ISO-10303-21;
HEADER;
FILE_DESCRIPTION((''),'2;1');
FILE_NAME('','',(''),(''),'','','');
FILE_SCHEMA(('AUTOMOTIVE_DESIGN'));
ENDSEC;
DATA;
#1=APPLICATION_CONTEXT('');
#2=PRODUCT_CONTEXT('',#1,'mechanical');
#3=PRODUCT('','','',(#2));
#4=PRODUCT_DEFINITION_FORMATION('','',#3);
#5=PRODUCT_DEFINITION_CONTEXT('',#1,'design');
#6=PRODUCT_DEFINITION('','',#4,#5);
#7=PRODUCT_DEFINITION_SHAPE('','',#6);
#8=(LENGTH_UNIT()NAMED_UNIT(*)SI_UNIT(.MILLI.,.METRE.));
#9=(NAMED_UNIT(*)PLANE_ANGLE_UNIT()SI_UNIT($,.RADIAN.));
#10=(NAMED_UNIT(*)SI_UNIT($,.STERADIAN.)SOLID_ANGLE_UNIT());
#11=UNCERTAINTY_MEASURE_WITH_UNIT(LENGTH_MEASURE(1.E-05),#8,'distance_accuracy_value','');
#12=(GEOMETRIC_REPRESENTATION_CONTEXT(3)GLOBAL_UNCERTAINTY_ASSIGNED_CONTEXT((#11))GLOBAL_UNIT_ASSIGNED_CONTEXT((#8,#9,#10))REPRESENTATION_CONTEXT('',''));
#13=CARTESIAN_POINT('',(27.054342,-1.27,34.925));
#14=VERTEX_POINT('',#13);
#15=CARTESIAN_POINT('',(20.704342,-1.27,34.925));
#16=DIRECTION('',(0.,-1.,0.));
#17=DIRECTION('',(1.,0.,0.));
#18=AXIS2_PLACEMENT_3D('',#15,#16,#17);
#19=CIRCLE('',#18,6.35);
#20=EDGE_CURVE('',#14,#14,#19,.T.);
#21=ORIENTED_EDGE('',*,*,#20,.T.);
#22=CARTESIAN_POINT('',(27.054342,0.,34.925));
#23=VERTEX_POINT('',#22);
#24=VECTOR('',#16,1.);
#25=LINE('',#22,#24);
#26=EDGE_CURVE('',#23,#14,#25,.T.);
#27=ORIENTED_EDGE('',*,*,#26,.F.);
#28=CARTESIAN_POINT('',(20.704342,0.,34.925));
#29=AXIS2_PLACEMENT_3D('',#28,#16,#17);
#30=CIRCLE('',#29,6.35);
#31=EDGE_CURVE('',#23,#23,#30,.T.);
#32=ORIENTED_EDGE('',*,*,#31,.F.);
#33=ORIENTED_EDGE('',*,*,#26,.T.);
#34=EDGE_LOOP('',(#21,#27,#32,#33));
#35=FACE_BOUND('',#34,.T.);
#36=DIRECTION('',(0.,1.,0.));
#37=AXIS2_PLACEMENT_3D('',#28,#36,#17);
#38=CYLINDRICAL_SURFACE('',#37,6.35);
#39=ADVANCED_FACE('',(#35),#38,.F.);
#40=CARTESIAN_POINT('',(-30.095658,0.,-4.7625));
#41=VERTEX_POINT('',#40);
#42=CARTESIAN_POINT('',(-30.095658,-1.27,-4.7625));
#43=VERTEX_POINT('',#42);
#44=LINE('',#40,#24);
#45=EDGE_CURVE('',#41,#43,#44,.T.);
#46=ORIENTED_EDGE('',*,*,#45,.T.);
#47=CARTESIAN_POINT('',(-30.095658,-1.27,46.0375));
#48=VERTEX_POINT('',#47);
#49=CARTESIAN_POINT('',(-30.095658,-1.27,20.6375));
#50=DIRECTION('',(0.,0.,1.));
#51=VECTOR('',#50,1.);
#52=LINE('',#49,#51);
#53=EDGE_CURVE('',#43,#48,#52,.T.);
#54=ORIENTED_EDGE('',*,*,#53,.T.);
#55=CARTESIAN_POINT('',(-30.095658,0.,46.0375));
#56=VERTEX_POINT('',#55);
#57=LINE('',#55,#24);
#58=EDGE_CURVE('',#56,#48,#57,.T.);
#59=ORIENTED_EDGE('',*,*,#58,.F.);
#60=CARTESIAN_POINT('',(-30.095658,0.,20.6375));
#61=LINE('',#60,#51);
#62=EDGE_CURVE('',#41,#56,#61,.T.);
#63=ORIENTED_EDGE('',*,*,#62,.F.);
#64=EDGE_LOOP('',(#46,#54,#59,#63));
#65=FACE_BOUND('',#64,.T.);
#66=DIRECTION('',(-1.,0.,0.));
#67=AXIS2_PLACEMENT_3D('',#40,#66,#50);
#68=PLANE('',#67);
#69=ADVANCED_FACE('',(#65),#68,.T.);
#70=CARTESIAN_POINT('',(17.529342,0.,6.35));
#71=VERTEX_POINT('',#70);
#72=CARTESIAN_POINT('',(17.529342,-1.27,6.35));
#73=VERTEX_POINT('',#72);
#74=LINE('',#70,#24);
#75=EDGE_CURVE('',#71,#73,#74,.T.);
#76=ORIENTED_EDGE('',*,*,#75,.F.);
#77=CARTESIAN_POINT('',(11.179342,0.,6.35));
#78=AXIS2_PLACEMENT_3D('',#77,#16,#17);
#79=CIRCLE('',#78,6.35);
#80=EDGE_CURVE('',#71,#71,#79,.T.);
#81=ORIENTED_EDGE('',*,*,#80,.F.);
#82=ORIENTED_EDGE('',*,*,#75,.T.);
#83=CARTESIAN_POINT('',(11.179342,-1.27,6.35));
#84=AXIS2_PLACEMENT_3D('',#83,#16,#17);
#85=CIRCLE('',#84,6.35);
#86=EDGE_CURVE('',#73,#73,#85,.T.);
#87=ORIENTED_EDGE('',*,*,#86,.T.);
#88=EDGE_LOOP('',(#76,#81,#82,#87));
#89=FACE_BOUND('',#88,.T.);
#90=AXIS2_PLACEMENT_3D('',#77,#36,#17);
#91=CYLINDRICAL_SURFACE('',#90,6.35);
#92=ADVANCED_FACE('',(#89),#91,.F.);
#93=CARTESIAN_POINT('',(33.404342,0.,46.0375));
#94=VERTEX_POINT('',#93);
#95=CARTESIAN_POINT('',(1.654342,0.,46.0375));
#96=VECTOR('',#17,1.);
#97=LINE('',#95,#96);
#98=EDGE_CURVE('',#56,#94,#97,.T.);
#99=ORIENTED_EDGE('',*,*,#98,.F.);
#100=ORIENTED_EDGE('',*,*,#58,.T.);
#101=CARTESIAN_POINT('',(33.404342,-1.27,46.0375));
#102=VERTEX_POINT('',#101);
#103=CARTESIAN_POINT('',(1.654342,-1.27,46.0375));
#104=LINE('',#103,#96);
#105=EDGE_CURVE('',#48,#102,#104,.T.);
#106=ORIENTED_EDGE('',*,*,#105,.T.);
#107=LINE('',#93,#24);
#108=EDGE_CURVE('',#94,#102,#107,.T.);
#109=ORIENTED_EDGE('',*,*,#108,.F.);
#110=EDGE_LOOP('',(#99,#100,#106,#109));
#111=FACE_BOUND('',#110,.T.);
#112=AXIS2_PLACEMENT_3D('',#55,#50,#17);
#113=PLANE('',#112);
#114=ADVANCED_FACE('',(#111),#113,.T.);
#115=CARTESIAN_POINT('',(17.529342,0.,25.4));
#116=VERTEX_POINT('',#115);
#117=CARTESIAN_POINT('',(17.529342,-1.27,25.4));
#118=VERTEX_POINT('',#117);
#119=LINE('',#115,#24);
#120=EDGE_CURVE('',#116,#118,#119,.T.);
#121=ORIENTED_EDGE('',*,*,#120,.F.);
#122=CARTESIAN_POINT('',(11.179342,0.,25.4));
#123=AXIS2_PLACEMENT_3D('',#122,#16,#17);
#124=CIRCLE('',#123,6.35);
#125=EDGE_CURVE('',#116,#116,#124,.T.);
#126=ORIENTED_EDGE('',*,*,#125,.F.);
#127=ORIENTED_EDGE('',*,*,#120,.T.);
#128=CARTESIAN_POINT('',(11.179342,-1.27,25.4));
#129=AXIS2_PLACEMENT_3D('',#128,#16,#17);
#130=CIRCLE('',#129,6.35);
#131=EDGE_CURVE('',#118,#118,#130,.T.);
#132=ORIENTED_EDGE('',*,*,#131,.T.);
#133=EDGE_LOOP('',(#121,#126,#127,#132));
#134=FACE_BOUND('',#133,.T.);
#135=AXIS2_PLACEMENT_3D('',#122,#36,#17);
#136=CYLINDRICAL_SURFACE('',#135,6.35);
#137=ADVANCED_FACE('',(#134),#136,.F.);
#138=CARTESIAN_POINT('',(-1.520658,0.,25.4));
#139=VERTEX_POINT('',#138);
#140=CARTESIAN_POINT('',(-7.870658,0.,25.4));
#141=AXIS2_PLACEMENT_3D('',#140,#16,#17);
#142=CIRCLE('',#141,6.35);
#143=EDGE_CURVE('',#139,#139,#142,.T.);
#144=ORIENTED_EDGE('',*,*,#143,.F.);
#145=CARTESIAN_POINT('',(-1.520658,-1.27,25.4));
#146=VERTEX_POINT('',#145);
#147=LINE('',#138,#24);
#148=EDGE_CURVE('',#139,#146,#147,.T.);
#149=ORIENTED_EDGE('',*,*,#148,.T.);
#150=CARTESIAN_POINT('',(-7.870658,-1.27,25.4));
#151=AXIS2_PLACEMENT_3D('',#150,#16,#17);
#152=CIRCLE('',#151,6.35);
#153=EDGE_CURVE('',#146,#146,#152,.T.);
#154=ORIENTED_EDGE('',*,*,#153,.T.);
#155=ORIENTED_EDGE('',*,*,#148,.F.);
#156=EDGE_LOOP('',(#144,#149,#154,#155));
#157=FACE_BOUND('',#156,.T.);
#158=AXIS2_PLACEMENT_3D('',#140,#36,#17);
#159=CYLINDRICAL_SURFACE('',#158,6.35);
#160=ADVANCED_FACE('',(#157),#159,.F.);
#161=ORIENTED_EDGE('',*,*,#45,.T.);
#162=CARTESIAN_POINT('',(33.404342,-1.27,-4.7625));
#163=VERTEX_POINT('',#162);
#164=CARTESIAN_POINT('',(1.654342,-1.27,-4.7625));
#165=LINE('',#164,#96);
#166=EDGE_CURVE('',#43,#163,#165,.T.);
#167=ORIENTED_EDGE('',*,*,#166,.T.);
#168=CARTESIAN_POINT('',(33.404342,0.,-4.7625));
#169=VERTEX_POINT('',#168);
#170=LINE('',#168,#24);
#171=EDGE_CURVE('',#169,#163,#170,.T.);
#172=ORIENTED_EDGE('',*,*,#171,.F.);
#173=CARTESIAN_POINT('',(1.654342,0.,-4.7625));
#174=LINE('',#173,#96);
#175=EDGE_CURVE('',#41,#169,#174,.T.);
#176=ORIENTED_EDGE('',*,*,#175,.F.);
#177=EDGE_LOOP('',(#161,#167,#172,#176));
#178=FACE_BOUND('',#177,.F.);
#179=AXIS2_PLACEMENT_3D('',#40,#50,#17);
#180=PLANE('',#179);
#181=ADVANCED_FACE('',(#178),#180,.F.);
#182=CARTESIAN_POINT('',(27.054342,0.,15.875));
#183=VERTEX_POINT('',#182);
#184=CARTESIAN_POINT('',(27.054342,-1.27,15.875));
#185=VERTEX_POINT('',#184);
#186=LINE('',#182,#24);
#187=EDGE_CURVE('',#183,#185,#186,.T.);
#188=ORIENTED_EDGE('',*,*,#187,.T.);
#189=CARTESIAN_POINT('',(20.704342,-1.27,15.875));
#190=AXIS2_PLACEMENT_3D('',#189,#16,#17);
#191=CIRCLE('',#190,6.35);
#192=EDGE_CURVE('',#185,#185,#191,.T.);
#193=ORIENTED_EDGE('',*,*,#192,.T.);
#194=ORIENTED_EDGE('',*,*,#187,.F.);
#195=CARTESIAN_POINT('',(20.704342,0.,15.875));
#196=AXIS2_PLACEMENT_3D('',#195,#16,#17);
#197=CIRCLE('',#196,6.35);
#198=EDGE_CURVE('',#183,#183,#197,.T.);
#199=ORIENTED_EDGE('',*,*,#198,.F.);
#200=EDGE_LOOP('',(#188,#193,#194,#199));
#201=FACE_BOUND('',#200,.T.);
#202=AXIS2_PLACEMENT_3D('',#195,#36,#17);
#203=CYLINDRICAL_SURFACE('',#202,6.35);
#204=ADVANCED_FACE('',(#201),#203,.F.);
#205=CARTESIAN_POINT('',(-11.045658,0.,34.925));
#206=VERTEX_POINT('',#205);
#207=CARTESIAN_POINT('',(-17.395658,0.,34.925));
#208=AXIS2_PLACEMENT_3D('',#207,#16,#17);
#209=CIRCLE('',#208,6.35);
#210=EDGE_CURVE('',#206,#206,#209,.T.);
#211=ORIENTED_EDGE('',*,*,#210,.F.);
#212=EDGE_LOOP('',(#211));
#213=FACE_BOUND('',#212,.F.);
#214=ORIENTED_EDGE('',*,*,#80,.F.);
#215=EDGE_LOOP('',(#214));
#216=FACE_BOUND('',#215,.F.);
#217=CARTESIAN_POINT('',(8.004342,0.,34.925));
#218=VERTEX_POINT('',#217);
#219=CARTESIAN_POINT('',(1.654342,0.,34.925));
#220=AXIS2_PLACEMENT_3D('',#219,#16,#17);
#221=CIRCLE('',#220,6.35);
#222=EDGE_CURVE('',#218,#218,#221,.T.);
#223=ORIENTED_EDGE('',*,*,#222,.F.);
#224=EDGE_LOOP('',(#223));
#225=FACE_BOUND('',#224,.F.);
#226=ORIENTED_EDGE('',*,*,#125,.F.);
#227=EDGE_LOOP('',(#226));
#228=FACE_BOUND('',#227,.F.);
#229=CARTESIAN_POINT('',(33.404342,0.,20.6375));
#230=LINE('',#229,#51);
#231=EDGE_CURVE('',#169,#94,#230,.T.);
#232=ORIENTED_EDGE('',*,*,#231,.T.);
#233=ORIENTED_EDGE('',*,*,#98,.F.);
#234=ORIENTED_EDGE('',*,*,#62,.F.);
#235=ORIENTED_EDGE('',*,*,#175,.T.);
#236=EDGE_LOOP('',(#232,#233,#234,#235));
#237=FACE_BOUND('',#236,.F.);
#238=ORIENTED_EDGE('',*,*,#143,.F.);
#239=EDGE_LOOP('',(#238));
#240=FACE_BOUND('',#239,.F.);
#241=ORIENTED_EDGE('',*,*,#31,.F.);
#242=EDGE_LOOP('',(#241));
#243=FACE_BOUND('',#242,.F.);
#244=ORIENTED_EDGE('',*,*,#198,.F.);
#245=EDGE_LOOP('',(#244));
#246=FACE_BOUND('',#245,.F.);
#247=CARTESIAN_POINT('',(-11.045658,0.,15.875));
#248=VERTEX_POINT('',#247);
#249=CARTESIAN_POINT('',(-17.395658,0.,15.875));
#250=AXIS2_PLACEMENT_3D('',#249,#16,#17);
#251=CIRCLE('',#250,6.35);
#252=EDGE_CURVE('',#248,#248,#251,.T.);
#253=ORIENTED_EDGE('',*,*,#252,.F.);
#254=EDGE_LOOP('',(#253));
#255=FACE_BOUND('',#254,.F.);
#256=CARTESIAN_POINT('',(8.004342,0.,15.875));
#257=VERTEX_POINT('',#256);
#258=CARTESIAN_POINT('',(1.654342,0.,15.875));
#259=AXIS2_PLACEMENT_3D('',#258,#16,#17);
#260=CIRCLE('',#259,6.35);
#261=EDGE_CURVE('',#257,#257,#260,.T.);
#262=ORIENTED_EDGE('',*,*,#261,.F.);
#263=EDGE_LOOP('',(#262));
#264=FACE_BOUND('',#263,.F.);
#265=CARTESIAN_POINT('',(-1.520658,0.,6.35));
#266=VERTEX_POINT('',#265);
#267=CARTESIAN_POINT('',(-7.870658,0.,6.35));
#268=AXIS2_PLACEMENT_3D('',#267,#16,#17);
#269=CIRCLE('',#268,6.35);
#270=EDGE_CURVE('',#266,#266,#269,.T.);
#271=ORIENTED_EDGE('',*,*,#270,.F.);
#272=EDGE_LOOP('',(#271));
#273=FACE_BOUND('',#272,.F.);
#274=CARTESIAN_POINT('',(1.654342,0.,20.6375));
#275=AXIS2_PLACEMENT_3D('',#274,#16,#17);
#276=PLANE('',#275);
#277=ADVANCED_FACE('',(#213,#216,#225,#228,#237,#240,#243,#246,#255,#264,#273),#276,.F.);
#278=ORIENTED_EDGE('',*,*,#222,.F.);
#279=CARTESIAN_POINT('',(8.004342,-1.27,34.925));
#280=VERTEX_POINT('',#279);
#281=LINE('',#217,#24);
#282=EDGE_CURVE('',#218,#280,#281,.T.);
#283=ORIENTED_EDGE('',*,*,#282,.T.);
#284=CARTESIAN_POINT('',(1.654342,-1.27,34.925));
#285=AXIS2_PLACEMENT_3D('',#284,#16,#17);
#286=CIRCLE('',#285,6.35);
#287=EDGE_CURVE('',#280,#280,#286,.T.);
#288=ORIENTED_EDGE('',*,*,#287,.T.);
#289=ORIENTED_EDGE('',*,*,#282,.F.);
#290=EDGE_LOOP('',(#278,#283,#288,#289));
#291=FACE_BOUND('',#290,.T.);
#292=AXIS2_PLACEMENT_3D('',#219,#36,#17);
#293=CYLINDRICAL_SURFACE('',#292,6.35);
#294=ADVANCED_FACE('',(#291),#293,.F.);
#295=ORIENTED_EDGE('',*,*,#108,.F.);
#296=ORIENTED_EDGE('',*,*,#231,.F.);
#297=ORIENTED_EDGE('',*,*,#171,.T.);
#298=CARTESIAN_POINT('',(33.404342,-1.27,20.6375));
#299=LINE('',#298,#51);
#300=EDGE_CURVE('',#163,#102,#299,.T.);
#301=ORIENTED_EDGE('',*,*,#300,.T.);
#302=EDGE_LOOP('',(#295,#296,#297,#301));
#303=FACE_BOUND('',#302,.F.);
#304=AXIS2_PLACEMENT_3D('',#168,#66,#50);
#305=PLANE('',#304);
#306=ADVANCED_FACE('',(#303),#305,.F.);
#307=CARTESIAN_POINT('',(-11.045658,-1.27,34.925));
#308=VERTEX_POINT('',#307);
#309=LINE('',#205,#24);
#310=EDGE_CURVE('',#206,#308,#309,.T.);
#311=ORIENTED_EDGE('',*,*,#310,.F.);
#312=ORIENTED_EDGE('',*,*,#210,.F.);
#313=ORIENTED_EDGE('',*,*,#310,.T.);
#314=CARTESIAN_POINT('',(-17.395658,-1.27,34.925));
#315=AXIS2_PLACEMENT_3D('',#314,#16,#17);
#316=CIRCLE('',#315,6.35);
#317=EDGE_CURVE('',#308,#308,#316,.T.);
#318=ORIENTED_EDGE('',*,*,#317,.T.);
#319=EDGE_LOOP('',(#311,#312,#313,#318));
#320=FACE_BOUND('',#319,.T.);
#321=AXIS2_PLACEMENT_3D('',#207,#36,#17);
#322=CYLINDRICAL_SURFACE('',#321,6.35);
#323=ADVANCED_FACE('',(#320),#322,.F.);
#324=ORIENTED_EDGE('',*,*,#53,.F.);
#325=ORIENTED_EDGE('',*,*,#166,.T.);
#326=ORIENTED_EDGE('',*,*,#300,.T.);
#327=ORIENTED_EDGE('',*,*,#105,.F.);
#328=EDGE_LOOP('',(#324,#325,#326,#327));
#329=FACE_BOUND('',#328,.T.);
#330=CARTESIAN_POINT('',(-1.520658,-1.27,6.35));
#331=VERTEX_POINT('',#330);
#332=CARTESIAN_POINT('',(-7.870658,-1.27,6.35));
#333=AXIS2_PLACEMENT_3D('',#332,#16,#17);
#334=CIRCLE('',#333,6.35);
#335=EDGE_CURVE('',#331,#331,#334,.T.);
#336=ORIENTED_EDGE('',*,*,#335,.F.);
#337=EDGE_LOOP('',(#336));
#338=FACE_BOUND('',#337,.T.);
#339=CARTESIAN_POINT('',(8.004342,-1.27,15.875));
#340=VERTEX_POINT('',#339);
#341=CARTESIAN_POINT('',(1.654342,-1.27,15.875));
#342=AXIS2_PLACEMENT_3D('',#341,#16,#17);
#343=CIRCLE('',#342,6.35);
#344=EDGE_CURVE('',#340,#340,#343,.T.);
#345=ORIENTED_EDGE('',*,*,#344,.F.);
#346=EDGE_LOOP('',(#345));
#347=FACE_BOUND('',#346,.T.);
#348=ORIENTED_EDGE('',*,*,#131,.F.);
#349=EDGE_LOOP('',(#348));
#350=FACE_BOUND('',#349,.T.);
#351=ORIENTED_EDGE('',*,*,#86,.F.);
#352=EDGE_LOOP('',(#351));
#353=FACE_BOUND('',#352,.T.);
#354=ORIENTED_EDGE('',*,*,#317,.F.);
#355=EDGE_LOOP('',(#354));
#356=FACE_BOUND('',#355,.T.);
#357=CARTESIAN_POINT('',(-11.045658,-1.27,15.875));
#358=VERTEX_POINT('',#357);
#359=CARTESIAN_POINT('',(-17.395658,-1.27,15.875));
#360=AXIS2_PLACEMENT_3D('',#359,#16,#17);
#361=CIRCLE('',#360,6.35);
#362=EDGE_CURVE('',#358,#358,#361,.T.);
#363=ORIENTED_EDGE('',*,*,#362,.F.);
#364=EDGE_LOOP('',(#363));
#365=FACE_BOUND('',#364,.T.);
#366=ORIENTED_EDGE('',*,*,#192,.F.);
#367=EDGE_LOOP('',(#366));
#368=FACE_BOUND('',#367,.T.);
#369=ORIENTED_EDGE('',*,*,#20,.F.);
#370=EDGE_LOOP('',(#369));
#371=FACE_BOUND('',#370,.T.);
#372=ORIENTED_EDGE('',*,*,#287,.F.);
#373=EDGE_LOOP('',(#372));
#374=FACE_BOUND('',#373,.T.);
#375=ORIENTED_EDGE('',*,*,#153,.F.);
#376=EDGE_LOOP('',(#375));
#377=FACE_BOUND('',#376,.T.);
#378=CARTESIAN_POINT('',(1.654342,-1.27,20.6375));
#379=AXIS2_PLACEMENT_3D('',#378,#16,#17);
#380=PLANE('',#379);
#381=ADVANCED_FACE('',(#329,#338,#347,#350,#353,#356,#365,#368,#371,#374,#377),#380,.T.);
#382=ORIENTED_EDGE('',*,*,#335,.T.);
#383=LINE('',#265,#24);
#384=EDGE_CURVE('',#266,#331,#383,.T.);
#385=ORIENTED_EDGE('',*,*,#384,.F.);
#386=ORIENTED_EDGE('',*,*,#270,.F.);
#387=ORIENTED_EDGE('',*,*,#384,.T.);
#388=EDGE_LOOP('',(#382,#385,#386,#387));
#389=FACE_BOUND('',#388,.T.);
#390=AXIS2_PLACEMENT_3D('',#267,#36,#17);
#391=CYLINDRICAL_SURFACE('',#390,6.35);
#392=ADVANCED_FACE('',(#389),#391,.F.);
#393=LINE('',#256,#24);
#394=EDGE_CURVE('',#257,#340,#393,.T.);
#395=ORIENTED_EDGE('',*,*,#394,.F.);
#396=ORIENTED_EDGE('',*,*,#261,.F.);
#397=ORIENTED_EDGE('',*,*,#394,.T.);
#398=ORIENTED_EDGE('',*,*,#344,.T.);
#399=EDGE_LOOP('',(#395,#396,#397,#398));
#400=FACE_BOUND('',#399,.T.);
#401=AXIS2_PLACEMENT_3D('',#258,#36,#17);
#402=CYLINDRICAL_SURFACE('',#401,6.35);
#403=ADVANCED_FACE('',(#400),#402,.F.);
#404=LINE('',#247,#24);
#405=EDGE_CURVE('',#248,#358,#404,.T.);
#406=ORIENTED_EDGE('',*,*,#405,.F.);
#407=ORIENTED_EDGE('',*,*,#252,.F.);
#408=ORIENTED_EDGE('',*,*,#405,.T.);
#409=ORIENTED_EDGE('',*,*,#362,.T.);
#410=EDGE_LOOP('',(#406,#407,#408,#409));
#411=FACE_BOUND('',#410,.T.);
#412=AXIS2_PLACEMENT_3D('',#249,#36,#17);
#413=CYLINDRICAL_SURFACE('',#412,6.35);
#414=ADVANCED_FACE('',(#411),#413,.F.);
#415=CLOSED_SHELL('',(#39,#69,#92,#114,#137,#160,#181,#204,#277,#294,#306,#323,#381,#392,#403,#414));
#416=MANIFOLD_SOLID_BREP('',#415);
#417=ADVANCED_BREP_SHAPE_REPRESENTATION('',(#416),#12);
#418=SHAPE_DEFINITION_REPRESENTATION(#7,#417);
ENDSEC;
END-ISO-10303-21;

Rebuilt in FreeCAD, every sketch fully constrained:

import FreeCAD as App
import Part
import Sketcher

V = App.Vector
Q = App.Units.Quantity

doc = App.newDocument("Part")
body = doc.addObject("PartDesign::Body", "Body")

# Sketch on XZ plane
sketch1 = doc.addObject("Sketcher::SketchObject", "Sketch")
body.addObject(sketch1)
sketch1.AttachmentSupport = (doc.XZ_Plane, [""])
sketch1.MapMode = "FlatFace"
sketch1.addGeometry(Part.LineSegment(V(-30, 46, 0), V(-30, -5, 0)), False)
sketch1.addGeometry(Part.LineSegment(V(-30, -5, 0), V(33, -5, 0)), False)
sketch1.addGeometry(Part.LineSegment(V(33, -5, 0), V(33, 46, 0)), False)
sketch1.addGeometry(Part.LineSegment(V(33, 46, 0), V(-30, 46, 0)), False)
sketch1.addGeometry(Part.Circle(V(-8, 6, 0), V(0, 0, 1), 6), False)
sketch1.addGeometry(Part.Circle(V(-17, 16, 0), V(0, 0, 1), 6), False)
sketch1.addGeometry(Part.Circle(V(2, 16, 0), V(0, 0, 1), 6), False)
sketch1.addGeometry(Part.Circle(V(11, 6, 0), V(0, 0, 1), 6), False)
sketch1.addGeometry(Part.Circle(V(21, 16, 0), V(0, 0, 1), 6), False)
sketch1.addGeometry(Part.Circle(V(-8, 25, 0), V(0, 0, 1), 6), False)
sketch1.addGeometry(Part.Circle(V(-17, 35, 0), V(0, 0, 1), 6), False)
sketch1.addGeometry(Part.Circle(V(2, 35, 0), V(0, 0, 1), 6), False)
sketch1.addGeometry(Part.Circle(V(11, 25, 0), V(0, 0, 1), 6), False)
sketch1.addGeometry(Part.Circle(V(21, 35, 0), V(0, 0, 1), 6), False)
sketch1.addConstraint(Sketcher.Constraint("Coincident", 0, 2, 1, 1))
sketch1.addConstraint(Sketcher.Constraint("Coincident", 1, 2, 2, 1))
sketch1.addConstraint(Sketcher.Constraint("Coincident", 2, 2, 3, 1))
sketch1.addConstraint(Sketcher.Constraint("Coincident", 3, 2, 0, 1))
sketch1.addConstraint(Sketcher.Constraint("Vertical", 0))
sketch1.addConstraint(Sketcher.Constraint("Horizontal", 1))
sketch1.addConstraint(Sketcher.Constraint("Vertical", 2))
sketch1.addConstraint(Sketcher.Constraint("Horizontal", 3))
sketch1.addConstraint(Sketcher.Constraint("Equal", 4, 5))
sketch1.addConstraint(Sketcher.Constraint("Equal", 5, 6))
sketch1.addConstraint(Sketcher.Constraint("Equal", 6, 7))
sketch1.addConstraint(Sketcher.Constraint("Equal", 7, 8))
sketch1.addConstraint(Sketcher.Constraint("Equal", 8, 9))
sketch1.addConstraint(Sketcher.Constraint("Equal", 9, 10))
sketch1.addConstraint(Sketcher.Constraint("Equal", 10, 11))
sketch1.addConstraint(Sketcher.Constraint("Equal", 11, 12))
sketch1.addConstraint(Sketcher.Constraint("Equal", 12, 13))
sketch1.addConstraint(Sketcher.Constraint("Horizontal", 5, 3, 6, 3))
sketch1.addConstraint(Sketcher.Constraint("Horizontal", 4, 3, 7, 3))
sketch1.addConstraint(Sketcher.Constraint("Horizontal", 6, 3, 8, 3))
sketch1.addConstraint(Sketcher.Constraint("Horizontal", 10, 3, 11, 3))
sketch1.addConstraint(Sketcher.Constraint("Horizontal", 9, 3, 12, 3))
sketch1.addConstraint(Sketcher.Constraint("Horizontal", 11, 3, 13, 3))
sketch1.addConstraint(Sketcher.Constraint("Vertical", 4, 3, 9, 3))
sketch1.addConstraint(Sketcher.Constraint("Vertical", 5, 3, 10, 3))
sketch1.addConstraint(Sketcher.Constraint("Vertical", 6, 3, 11, 3))
sketch1.addConstraint(Sketcher.Constraint("Vertical", 7, 3, 12, 3))
sketch1.addConstraint(Sketcher.Constraint("Vertical", 8, 3, 13, 3))
sketch1.addConstraint(Sketcher.Constraint("Diameter", 4, Q("0.5 in")))
sketch1.addConstraint(Sketcher.Constraint("DistanceY", 0, 2, 0, 1, Q("2 in")))
sketch1.addConstraint(Sketcher.Constraint("DistanceX", 1, 1, 1, 2, Q("2.5 in")))
sketch1.addConstraint(Sketcher.Constraint("DistanceY", -1, 1, 9, 3, Q("1 in")))
sketch1.addConstraint(Sketcher.Constraint("DistanceX", 5, 3, 8, 3, Q("1.5 in")))
sketch1.addConstraint(Sketcher.Constraint("DistanceX", 0, 2, 5, 3, Q("0.5 in")))
sketch1.addConstraint(Sketcher.Constraint("DistanceY", -1, 1, 4, 3, Q("0.25 in")))
sketch1.addConstraint(Sketcher.Constraint("DistanceX", 5, 3, 6, 3, Q("0.75 in")))
sketch1.addConstraint(Sketcher.Constraint("DistanceX", 4, 3, 7, 3, Q("0.75 in")))
sketch1.addConstraint(Sketcher.Constraint("DistanceY", 5, 3, 10, 3, Q("0.75 in")))
sketch1.addConstraint(Sketcher.Constraint("DistanceY", -1, 1, 5, 3, Q("0.625 in")))
sketch1.addConstraint(Sketcher.Constraint("DistanceY", 0, 2, -1, 1, Q("0.1875 in")))
sketch1.addConstraint(Sketcher.Constraint("DistanceX", 5, 3, 4, 3, Q("0.375 in")))
sketch1.addConstraint(Sketcher.Constraint("DistanceX", 5, 3, -1, 1, Q("17.395658 mm")))
pad1 = doc.addObject("PartDesign::Pad", "Pad")
body.addObject(pad1)
pad1.Profile = sketch1
pad1.Length = Q("0.05 in")

doc.recompute()
